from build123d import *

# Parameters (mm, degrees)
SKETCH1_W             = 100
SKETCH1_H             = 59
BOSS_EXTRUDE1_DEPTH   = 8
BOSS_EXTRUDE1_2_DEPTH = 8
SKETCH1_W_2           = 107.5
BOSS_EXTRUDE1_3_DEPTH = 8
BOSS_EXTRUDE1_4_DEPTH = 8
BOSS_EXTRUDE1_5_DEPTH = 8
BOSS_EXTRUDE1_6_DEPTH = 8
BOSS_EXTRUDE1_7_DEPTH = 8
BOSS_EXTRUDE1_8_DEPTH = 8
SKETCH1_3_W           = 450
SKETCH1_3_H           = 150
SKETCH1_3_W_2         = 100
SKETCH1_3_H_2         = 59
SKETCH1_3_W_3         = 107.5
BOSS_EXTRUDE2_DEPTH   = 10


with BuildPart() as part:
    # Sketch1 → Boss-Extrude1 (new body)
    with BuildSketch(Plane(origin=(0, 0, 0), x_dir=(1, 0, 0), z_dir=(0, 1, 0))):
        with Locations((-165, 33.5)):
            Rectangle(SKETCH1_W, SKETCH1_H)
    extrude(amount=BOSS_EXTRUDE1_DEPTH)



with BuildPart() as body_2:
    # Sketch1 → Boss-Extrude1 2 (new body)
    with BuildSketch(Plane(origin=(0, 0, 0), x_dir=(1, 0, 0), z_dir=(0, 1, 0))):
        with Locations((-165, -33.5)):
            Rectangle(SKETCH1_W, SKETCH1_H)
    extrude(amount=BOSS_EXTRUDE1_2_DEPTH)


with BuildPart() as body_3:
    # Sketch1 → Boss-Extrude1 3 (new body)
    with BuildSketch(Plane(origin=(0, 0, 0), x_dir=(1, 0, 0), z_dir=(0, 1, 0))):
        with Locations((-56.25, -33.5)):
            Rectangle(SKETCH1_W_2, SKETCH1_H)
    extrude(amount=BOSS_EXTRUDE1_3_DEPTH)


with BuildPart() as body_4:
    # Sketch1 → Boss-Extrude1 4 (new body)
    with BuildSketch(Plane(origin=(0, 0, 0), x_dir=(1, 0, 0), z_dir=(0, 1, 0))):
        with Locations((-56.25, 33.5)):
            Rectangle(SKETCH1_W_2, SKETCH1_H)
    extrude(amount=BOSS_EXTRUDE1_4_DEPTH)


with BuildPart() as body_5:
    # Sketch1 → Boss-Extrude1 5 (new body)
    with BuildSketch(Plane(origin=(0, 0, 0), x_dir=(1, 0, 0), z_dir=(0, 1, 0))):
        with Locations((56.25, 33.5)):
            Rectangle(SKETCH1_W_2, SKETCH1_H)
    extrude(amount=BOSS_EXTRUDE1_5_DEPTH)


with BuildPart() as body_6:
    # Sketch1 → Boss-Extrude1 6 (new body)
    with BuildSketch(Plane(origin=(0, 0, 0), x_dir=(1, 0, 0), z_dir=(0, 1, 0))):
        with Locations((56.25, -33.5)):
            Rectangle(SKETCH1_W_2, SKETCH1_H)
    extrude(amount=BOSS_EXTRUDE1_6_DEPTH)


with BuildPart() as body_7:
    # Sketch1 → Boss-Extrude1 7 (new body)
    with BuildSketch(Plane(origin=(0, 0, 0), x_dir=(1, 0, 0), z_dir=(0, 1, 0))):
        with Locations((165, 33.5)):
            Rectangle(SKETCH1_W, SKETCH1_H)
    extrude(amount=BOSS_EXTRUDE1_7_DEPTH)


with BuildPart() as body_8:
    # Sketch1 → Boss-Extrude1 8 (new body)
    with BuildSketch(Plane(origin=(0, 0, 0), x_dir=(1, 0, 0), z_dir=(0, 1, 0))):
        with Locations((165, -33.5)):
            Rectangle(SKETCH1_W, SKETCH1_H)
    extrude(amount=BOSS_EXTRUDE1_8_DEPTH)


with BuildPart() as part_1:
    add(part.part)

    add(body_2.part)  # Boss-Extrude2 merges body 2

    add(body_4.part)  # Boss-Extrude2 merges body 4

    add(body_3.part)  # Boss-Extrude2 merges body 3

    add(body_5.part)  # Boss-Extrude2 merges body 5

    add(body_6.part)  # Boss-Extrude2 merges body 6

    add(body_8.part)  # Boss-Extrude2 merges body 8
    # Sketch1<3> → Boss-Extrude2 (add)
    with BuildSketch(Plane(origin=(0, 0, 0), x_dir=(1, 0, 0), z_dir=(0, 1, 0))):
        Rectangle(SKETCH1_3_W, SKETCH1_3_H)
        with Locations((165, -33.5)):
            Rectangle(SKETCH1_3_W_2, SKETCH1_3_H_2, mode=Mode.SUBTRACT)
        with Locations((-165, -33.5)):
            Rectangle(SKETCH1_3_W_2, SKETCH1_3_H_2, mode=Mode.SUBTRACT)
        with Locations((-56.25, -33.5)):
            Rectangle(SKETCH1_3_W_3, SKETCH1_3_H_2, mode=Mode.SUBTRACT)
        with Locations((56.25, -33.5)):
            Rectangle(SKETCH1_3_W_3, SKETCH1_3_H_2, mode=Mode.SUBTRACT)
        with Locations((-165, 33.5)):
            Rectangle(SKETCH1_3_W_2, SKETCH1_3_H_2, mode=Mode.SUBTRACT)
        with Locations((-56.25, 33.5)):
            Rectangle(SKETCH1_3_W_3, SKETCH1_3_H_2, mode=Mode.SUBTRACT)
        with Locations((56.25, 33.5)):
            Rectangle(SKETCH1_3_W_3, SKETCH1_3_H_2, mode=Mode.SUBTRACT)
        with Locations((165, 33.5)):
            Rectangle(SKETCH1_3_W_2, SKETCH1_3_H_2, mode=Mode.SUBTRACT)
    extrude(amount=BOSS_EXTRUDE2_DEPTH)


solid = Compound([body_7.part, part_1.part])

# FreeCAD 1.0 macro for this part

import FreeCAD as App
import Part
import Sketcher

V = App.Vector

doc = App.newDocument("Part")
body = doc.addObject("PartDesign::Body", "Body")

# Sketch on XZ plane
sketch1 = body.newObject("Sketcher::SketchObject", "Sketch")
sketch1.AttachmentSupport = (doc.getObject("XZ_Plane"), [""])
sketch1.MapMode = "FlatFace"
sketch1.addGeometry([
    Part.LineSegment(V(-215, -63, 0), V(-215, -4, 0)),
    Part.LineSegment(V(-215, -4, 0), V(-115, -4, 0)),
    Part.LineSegment(V(-115, -4, 0), V(-115, -63, 0)),
    Part.LineSegment(V(-115, -63, 0), V(-215, -63, 0)),
], False)
sketch1.addConstraint([
    Sketcher.Constraint("Coincident", 0, 2, 1, 1),
    Sketcher.Constraint("Coincident", 1, 2, 2, 1),
    Sketcher.Constraint("Coincident", 2, 2, 3, 1),
    Sketcher.Constraint("Coincident", 3, 2, 0, 1),
    Sketcher.Constraint("Vertical", 0),
    Sketcher.Constraint("Horizontal", 1),
    Sketcher.Constraint("Vertical", 2),
    Sketcher.Constraint("Horizontal", 3),
    Sketcher.Constraint("DistanceX", 1, 1, 1, 2, 100.0),
    Sketcher.Constraint("DistanceY", 0, 1, 0, 2, 59.0),
    Sketcher.Constraint("DistanceX", 0, 2, -1, 1, 215.0),
    Sketcher.Constraint("DistanceY", 0, 2, -1, 1, 4.0),
])
pad1 = body.newObject("PartDesign::Pad", "Pad")
pad1.Profile = sketch1
pad1.Length = 8
pad1.Reversed = True
body2 = doc.addObject("PartDesign::Body", "Body001")

# Sketch on XZ plane
sketch2 = body2.newObject("Sketcher::SketchObject", "Sketch001")
sketch2.AttachmentSupport = (doc.getObject("XZ_Plane001"), [""])
sketch2.MapMode = "FlatFace"
sketch2.addGeometry([
    Part.LineSegment(V(-215, 4, 0), V(-215, 63, 0)),
    Part.LineSegment(V(-215, 63, 0), V(-115, 63, 0)),
    Part.LineSegment(V(-115, 63, 0), V(-115, 4, 0)),
    Part.LineSegment(V(-115, 4, 0), V(-215, 4, 0)),
], False)
sketch2.addConstraint([
    Sketcher.Constraint("Coincident", 0, 2, 1, 1),
    Sketcher.Constraint("Coincident", 1, 2, 2, 1),
    Sketcher.Constraint("Coincident", 2, 2, 3, 1),
    Sketcher.Constraint("Coincident", 3, 2, 0, 1),
    Sketcher.Constraint("Vertical", 0),
    Sketcher.Constraint("Horizontal", 1),
    Sketcher.Constraint("Vertical", 2),
    Sketcher.Constraint("Horizontal", 3),
    Sketcher.Constraint("DistanceX", 1, 1, 1, 2, 100.0),
    Sketcher.Constraint("DistanceY", 0, 1, 0, 2, 59.0),
    Sketcher.Constraint("DistanceX", 0, 2, -1, 1, 215.0),
    Sketcher.Constraint("DistanceY", -1, 1, 0, 2, 63.0),
])
pad2 = body2.newObject("PartDesign::Pad", "Pad001")
pad2.Profile = sketch2
pad2.Length = 8
pad2.Reversed = True
body3 = doc.addObject("PartDesign::Body", "Body002")

# Sketch on XZ plane
sketch3 = body3.newObject("Sketcher::SketchObject", "Sketch002")
sketch3.AttachmentSupport = (doc.getObject("XZ_Plane002"), [""])
sketch3.MapMode = "FlatFace"
sketch3.addGeometry([
    Part.LineSegment(V(-110, 4, 0), V(-110, 63, 0)),
    Part.LineSegment(V(-110, 63, 0), V(-2, 63, 0)),
    Part.LineSegment(V(-2, 63, 0), V(-2, 4, 0)),
    Part.LineSegment(V(-2, 4, 0), V(-110, 4, 0)),
], False)
sketch3.addConstraint([
    Sketcher.Constraint("Coincident", 0, 2, 1, 1),
    Sketcher.Constraint("Coincident", 1, 2, 2, 1),
    Sketcher.Constraint("Coincident", 2, 2, 3, 1),
    Sketcher.Constraint("Coincident", 3, 2, 0, 1),
    Sketcher.Constraint("Vertical", 0),
    Sketcher.Constraint("Horizontal", 1),
    Sketcher.Constraint("Vertical", 2),
    Sketcher.Constraint("Horizontal", 3),
    Sketcher.Constraint("DistanceY", 0, 1, 0, 2, 59.0),
    Sketcher.Constraint("DistanceX", 1, 1, 1, 2, 107.5),
    Sketcher.Constraint("DistanceX", 0, 2, -1, 1, 110.0),
    Sketcher.Constraint("DistanceY", -1, 1, 0, 2, 63.0),
])
pad3 = body3.newObject("PartDesign::Pad", "Pad002")
pad3.Profile = sketch3
pad3.Length = 8
pad3.Reversed = True
body4 = doc.addObject("PartDesign::Body", "Body003")

# Sketch on XZ plane
sketch4 = body4.newObject("Sketcher::SketchObject", "Sketch003")
sketch4.AttachmentSupport = (doc.getObject("XZ_Plane003"), [""])
sketch4.MapMode = "FlatFace"
sketch4.addGeometry([
    Part.LineSegment(V(-110, -63, 0), V(-110, -4, 0)),
    Part.LineSegment(V(-110, -4, 0), V(-2, -4, 0)),
    Part.LineSegment(V(-2, -4, 0), V(-2, -63, 0)),
    Part.LineSegment(V(-2, -63, 0), V(-110, -63, 0)),
], False)
sketch4.addConstraint([
    Sketcher.Constraint("Coincident", 0, 2, 1, 1),
    Sketcher.Constraint("Coincident", 1, 2, 2, 1),
    Sketcher.Constraint("Coincident", 2, 2, 3, 1),
    Sketcher.Constraint("Coincident", 3, 2, 0, 1),
    Sketcher.Constraint("Vertical", 0),
    Sketcher.Constraint("Horizontal", 1),
    Sketcher.Constraint("Vertical", 2),
    Sketcher.Constraint("Horizontal", 3),
    Sketcher.Constraint("DistanceY", 0, 1, 0, 2, 59.0),
    Sketcher.Constraint("DistanceX", 1, 1, 1, 2, 107.5),
    Sketcher.Constraint("DistanceX", 0, 2, -1, 1, 110.0),
    Sketcher.Constraint("DistanceY", 0, 2, -1, 1, 4.0),
])
pad4 = body4.newObject("PartDesign::Pad", "Pad003")
pad4.Profile = sketch4
pad4.Length = 8
pad4.Reversed = True
body5 = doc.addObject("PartDesign::Body", "Body004")

# Sketch on XZ plane
sketch5 = body5.newObject("Sketcher::SketchObject", "Sketch004")
sketch5.AttachmentSupport = (doc.getObject("XZ_Plane004"), [""])
sketch5.MapMode = "FlatFace"
sketch5.addGeometry([
    Part.LineSegment(V(2, -63, 0), V(2, -4, 0)),
    Part.LineSegment(V(2, -4, 0), V(110, -4, 0)),
    Part.LineSegment(V(110, -4, 0), V(110, -63, 0)),
    Part.LineSegment(V(110, -63, 0), V(2, -63, 0)),
], False)
sketch5.addConstraint([
    Sketcher.Constraint("Coincident", 0, 2, 1, 1),
    Sketcher.Constraint("Coincident", 1, 2, 2, 1),
    Sketcher.Constraint("Coincident", 2, 2, 3, 1),
    Sketcher.Constraint("Coincident", 3, 2, 0, 1),
    Sketcher.Constraint("Vertical", 0),
    Sketcher.Constraint("Horizontal", 1),
    Sketcher.Constraint("Vertical", 2),
    Sketcher.Constraint("Horizontal", 3),
    Sketcher.Constraint("DistanceY", 0, 1, 0, 2, 59.0),
    Sketcher.Constraint("DistanceX", 1, 1, 1, 2, 107.5),
    Sketcher.Constraint("DistanceY", 0, 2, -1, 1, 4.0),
    Sketcher.Constraint("DistanceX", -1, 1, 1, 2, 110.0),
])
pad5 = body5.newObject("PartDesign::Pad", "Pad004")
pad5.Profile = sketch5
pad5.Length = 8
pad5.Reversed = True
body6 = doc.addObject("PartDesign::Body", "Body005")

# Sketch on XZ plane
sketch6 = body6.newObject("Sketcher::SketchObject", "Sketch005")
sketch6.AttachmentSupport = (doc.getObject("XZ_Plane005"), [""])
sketch6.MapMode = "FlatFace"
sketch6.addGeometry([
    Part.LineSegment(V(2, 4, 0), V(2, 63, 0)),
    Part.LineSegment(V(2, 63, 0), V(110, 63, 0)),
    Part.LineSegment(V(110, 63, 0), V(110, 4, 0)),
    Part.LineSegment(V(110, 4, 0), V(2, 4, 0)),
], False)
sketch6.addConstraint([
    Sketcher.Constraint("Coincident", 0, 2, 1, 1),
    Sketcher.Constraint("Coincident", 1, 2, 2, 1),
    Sketcher.Constraint("Coincident", 2, 2, 3, 1),
    Sketcher.Constraint("Coincident", 3, 2, 0, 1),
    Sketcher.Constraint("Vertical", 0),
    Sketcher.Constraint("Horizontal", 1),
    Sketcher.Constraint("Vertical", 2),
    Sketcher.Constraint("Horizontal", 3),
    Sketcher.Constraint("DistanceY", 0, 1, 0, 2, 59.0),
    Sketcher.Constraint("DistanceX", 1, 1, 1, 2, 107.5),
    Sketcher.Constraint("DistanceY", -1, 1, 0, 2, 63.0),
    Sketcher.Constraint("DistanceX", -1, 1, 1, 2, 110.0),
])
pad6 = body6.newObject("PartDesign::Pad", "Pad005")
pad6.Profile = sketch6
pad6.Length = 8
pad6.Reversed = True
body7 = doc.addObject("PartDesign::Body", "Body006")

# Sketch on XZ plane
sketch7 = body7.newObject("Sketcher::SketchObject", "Sketch006")
sketch7.AttachmentSupport = (doc.getObject("XZ_Plane006"), [""])
sketch7.MapMode = "FlatFace"
sketch7.addGeometry([
    Part.LineSegment(V(115, -63, 0), V(115, -4, 0)),
    Part.LineSegment(V(115, -4, 0), V(215, -4, 0)),
    Part.LineSegment(V(215, -4, 0), V(215, -63, 0)),
    Part.LineSegment(V(215, -63, 0), V(115, -63, 0)),
], False)
sketch7.addConstraint([
    Sketcher.Constraint("Coincident", 0, 2, 1, 1),
    Sketcher.Constraint("Coincident", 1, 2, 2, 1),
    Sketcher.Constraint("Coincident", 2, 2, 3, 1),
    Sketcher.Constraint("Coincident", 3, 2, 0, 1),
    Sketcher.Constraint("Vertical", 0),
    Sketcher.Constraint("Horizontal", 1),
    Sketcher.Constraint("Vertical", 2),
    Sketcher.Constraint("Horizontal", 3),
    Sketcher.Constraint("DistanceX", 1, 1, 1, 2, 100.0),
    Sketcher.Constraint("DistanceY", 0, 1, 0, 2, 59.0),
    Sketcher.Constraint("DistanceX", -1, 1, 0, 2, 115.0),
    Sketcher.Constraint("DistanceY", 0, 2, -1, 1, 4.0),
])
pad7 = body7.newObject("PartDesign::Pad", "Pad006")
pad7.Profile = sketch7
pad7.Length = 8
pad7.Reversed = True
body8 = doc.addObject("PartDesign::Body", "Body007")

# Sketch on XZ plane
sketch8 = body8.newObject("Sketcher::SketchObject", "Sketch007")
sketch8.AttachmentSupport = (doc.getObject("XZ_Plane007"), [""])
sketch8.MapMode = "FlatFace"
sketch8.addGeometry([
    Part.LineSegment(V(115, 4, 0), V(115, 63, 0)),
    Part.LineSegment(V(115, 63, 0), V(215, 63, 0)),
    Part.LineSegment(V(215, 63, 0), V(215, 4, 0)),
    Part.LineSegment(V(215, 4, 0), V(115, 4, 0)),
], False)
sketch8.addConstraint([
    Sketcher.Constraint("Coincident", 0, 2, 1, 1),
    Sketcher.Constraint("Coincident", 1, 2, 2, 1),
    Sketcher.Constraint("Coincident", 2, 2, 3, 1),
    Sketcher.Constraint("Coincident", 3, 2, 0, 1),
    Sketcher.Constraint("Vertical", 0),
    Sketcher.Constraint("Horizontal", 1),
    Sketcher.Constraint("Vertical", 2),
    Sketcher.Constraint("Horizontal", 3),
    Sketcher.Constraint("DistanceX", 1, 1, 1, 2, 100.0),
    Sketcher.Constraint("DistanceY", 0, 1, 0, 2, 59.0),
    Sketcher.Constraint("DistanceX", -1, 1, 0, 2, 115.0),
    Sketcher.Constraint("DistanceY", -1, 1, 0, 2, 63.0),
])
pad8 = body8.newObject("PartDesign::Pad", "Pad007")
pad8.Profile = sketch8
pad8.Length = 8
pad8.Reversed = True
body.AllowCompound = True
doc.recompute()

boolean = body.newObject("PartDesign::Boolean", "Boolean")
boolean.Type = "Fuse"
boolean.addObjects([body2])
doc.recompute()

boolean2 = body.newObject("PartDesign::Boolean", "Boolean001")
boolean2.Type = "Fuse"
boolean2.addObjects([body4])
doc.recompute()

boolean3 = body.newObject("PartDesign::Boolean", "Boolean002")
boolean3.Type = "Fuse"
boolean3.addObjects([body3])
doc.recompute()

boolean4 = body.newObject("PartDesign::Boolean", "Boolean003")
boolean4.Type = "Fuse"
boolean4.addObjects([body5])
doc.recompute()

boolean5 = body.newObject("PartDesign::Boolean", "Boolean004")
boolean5.Type = "Fuse"
boolean5.addObjects([body6])
doc.recompute()

boolean6 = body.newObject("PartDesign::Boolean", "Boolean005")
boolean6.Type = "Fuse"
boolean6.addObjects([body8])

# Sketch on XZ plane
sketch9 = body.newObject("Sketcher::SketchObject", "Sketch008")
sketch9.AttachmentSupport = (doc.getObject("XZ_Plane"), [""])
sketch9.MapMode = "FlatFace"
sketch9.addGeometry([
    Part.LineSegment(V(-225, -75, 0), V(-225, 75, 0)),  # 0
    Part.LineSegment(V(-225, 75, 0), V(225, 75, 0)),  # 1
    Part.LineSegment(V(225, 75, 0), V(225, -75, 0)),  # 2
    Part.LineSegment(V(225, -75, 0), V(-225, -75, 0)),  # 3
    Part.LineSegment(V(-115, 63, 0), V(-215, 63, 0)),  # 4
    Part.LineSegment(V(-215, 63, 0), V(-215, 4, 0)),  # 5
    Part.LineSegment(V(-215, 4, 0), V(-115, 4, 0)),  # 6
    Part.LineSegment(V(-115, 4, 0), V(-115, 63, 0)),  # 7
    Part.LineSegment(V(-2, 63, 0), V(-110, 63, 0)),  # 8
    Part.LineSegment(V(-110, 63, 0), V(-110, 4, 0)),  # 9
    Part.LineSegment(V(-110, 4, 0), V(-2, 4, 0)),  # 10
    Part.LineSegment(V(-2, 4, 0), V(-2, 63, 0)),  # 11
    Part.LineSegment(V(110, 63, 0), V(2, 63, 0)),  # 12
    Part.LineSegment(V(2, 63, 0), V(2, 4, 0)),  # 13
    Part.LineSegment(V(2, 4, 0), V(110, 4, 0)),  # 14
    Part.LineSegment(V(110, 4, 0), V(110, 63, 0)),  # 15
    Part.LineSegment(V(215, 63, 0), V(115, 63, 0)),  # 16
    Part.LineSegment(V(115, 63, 0), V(115, 4, 0)),  # 17
    Part.LineSegment(V(115, 4, 0), V(215, 4, 0)),  # 18
    Part.LineSegment(V(215, 4, 0), V(215, 63, 0)),  # 19
    Part.LineSegment(V(-115, -4, 0), V(-215, -4, 0)),  # 20
    Part.LineSegment(V(-215, -4, 0), V(-215, -63, 0)),  # 21
    Part.LineSegment(V(-215, -63, 0), V(-115, -63, 0)),  # 22
    Part.LineSegment(V(-115, -63, 0), V(-115, -4, 0)),  # 23
    Part.LineSegment(V(-2, -4, 0), V(-110, -4, 0)),  # 24
    Part.LineSegment(V(-110, -4, 0), V(-110, -63, 0)),  # 25
    Part.LineSegment(V(-110, -63, 0), V(-2, -63, 0)),  # 26
    Part.LineSegment(V(-2, -63, 0), V(-2, -4, 0)),  # 27
    Part.LineSegment(V(110, -4, 0), V(2, -4, 0)),  # 28
    Part.LineSegment(V(2, -4, 0), V(2, -63, 0)),  # 29
    Part.LineSegment(V(2, -63, 0), V(110, -63, 0)),  # 30
    Part.LineSegment(V(110, -63, 0), V(110, -4, 0)),  # 31
    Part.LineSegment(V(215, -4, 0), V(115, -4, 0)),  # 32
    Part.LineSegment(V(115, -4, 0), V(115, -63, 0)),  # 33
    Part.LineSegment(V(115, -63, 0), V(215, -63, 0)),  # 34
    Part.LineSegment(V(215, -63, 0), V(215, -4, 0)),  # 35
], False)
sketch9.addConstraint([
    Sketcher.Constraint("Coincident", 0, 2, 1, 1),
    Sketcher.Constraint("Coincident", 1, 2, 2, 1),
    Sketcher.Constraint("Coincident", 2, 2, 3, 1),
    Sketcher.Constraint("Coincident", 3, 2, 0, 1),
    Sketcher.Constraint("Coincident", 4, 2, 5, 1),
    Sketcher.Constraint("Coincident", 5, 2, 6, 1),
    Sketcher.Constraint("Coincident", 6, 2, 7, 1),
    Sketcher.Constraint("Coincident", 7, 2, 4, 1),
    Sketcher.Constraint("Coincident", 8, 2, 9, 1),
    Sketcher.Constraint("Coincident", 9, 2, 10, 1),
    Sketcher.Constraint("Coincident", 10, 2, 11, 1),
    Sketcher.Constraint("Coincident", 11, 2, 8, 1),
    Sketcher.Constraint("Coincident", 12, 2, 13, 1),
    Sketcher.Constraint("Coincident", 13, 2, 14, 1),
    Sketcher.Constraint("Coincident", 14, 2, 15, 1),
    Sketcher.Constraint("Coincident", 15, 2, 12, 1),
    Sketcher.Constraint("Coincident", 16, 2, 17, 1),
    Sketcher.Constraint("Coincident", 17, 2, 18, 1),
    Sketcher.Constraint("Coincident", 18, 2, 19, 1),
    Sketcher.Constraint("Coincident", 19, 2, 16, 1),
    Sketcher.Constraint("Coincident", 20, 2, 21, 1),
    Sketcher.Constraint("Coincident", 21, 2, 22, 1),
    Sketcher.Constraint("Coincident", 22, 2, 23, 1),
    Sketcher.Constraint("Coincident", 23, 2, 20, 1),
    Sketcher.Constraint("Coincident", 24, 2, 25, 1),
    Sketcher.Constraint("Coincident", 25, 2, 26, 1),
    Sketcher.Constraint("Coincident", 26, 2, 27, 1),
    Sketcher.Constraint("Coincident", 27, 2, 24, 1),
    Sketcher.Constraint("Coincident", 28, 2, 29, 1),
    Sketcher.Constraint("Coincident", 29, 2, 30, 1),
    Sketcher.Constraint("Coincident", 30, 2, 31, 1),
    Sketcher.Constraint("Coincident", 31, 2, 28, 1),
    Sketcher.Constraint("Coincident", 32, 2, 33, 1),
    Sketcher.Constraint("Coincident", 33, 2, 34, 1),
    Sketcher.Constraint("Coincident", 34, 2, 35, 1),
    Sketcher.Constraint("Coincident", 35, 2, 32, 1),
    Sketcher.Constraint("Vertical", 0),
    Sketcher.Constraint("Horizontal", 1),
    Sketcher.Constraint("Vertical", 2),
    Sketcher.Constraint("Horizontal", 3),
    Sketcher.Constraint("Horizontal", 4),
    Sketcher.Constraint("Vertical", 5),
    Sketcher.Constraint("Horizontal", 6),
    Sketcher.Constraint("Vertical", 7),
    Sketcher.Constraint("Horizontal", 8),
    Sketcher.Constraint("Vertical", 9),
    Sketcher.Constraint("Horizontal", 10),
    Sketcher.Constraint("Vertical", 11),
    Sketcher.Constraint("Horizontal", 12),
    Sketcher.Constraint("Vertical", 13),
    Sketcher.Constraint("Horizontal", 14),
    Sketcher.Constraint("Vertical", 15),
    Sketcher.Constraint("Horizontal", 16),
    Sketcher.Constraint("Vertical", 17),
    Sketcher.Constraint("Horizontal", 18),
    Sketcher.Constraint("Vertical", 19),
    Sketcher.Constraint("Horizontal", 20),
    Sketcher.Constraint("Vertical", 21),
    Sketcher.Constraint("Horizontal", 22),
    Sketcher.Constraint("Vertical", 23),
    Sketcher.Constraint("Horizontal", 24),
    Sketcher.Constraint("Vertical", 25),
    Sketcher.Constraint("Horizontal", 26),
    Sketcher.Constraint("Vertical", 27),
    Sketcher.Constraint("Horizontal", 28),
    Sketcher.Constraint("Vertical", 29),
    Sketcher.Constraint("Horizontal", 30),
    Sketcher.Constraint("Vertical", 31),
    Sketcher.Constraint("Horizontal", 32),
    Sketcher.Constraint("Vertical", 33),
    Sketcher.Constraint("Horizontal", 34),
    Sketcher.Constraint("Vertical", 35),
    Sketcher.Constraint("Symmetric", 0, 2, 2, 2, -1, 1),
    Sketcher.Constraint("Symmetric", 18, 2, 20, 2, -1, 1),
    Sketcher.Constraint("Symmetric", 16, 2, 22, 2, -1, 1),
    Sketcher.Constraint("Symmetric", 14, 2, 24, 2, -1, 1),
    Sketcher.Constraint("Symmetric", 12, 2, 26, 2, -1, 1),
    Sketcher.Constraint("Symmetric", 10, 2, 28, 2, -1, 1),
    Sketcher.Constraint("Symmetric", 8, 2, 30, 2, -1, 1),
    Sketcher.Constraint("Symmetric", 6, 2, 32, 2, -1, 1),
    Sketcher.Constraint("Symmetric", 4, 2, 34, 2, -1, 1),
    Sketcher.Constraint("Symmetric", 11, 2, 12, 2, -2),
    Sketcher.Constraint("Symmetric", 9, 2, 14, 2, -2),
    Sketcher.Constraint("Symmetric", 7, 2, 16, 2, -2),
    Sketcher.Constraint("Symmetric", 5, 2, 18, 2, -2),
    Sketcher.Constraint("Horizontal", 7, 2, 8, 2),
    Sketcher.Constraint("Horizontal", 6, 2, 9, 2),
    Sketcher.Constraint("DistanceX", 1, 1, 1, 2, 450.0),
    Sketcher.Constraint("DistanceX", 4, 2, 4, 1, 100.0),
    Sketcher.Constraint("DistanceY", 0, 1, 0, 2, 150.0),
    Sketcher.Constraint("DistanceY", 5, 2, 5, 1, 59.0),
    Sketcher.Constraint("DistanceX", 8, 2, 8, 1, 107.5),
    Sketcher.Constraint("DistanceX", 4, 2, -1, 1, 215.0),
    Sketcher.Constraint("DistanceY", -1, 1, 4, 2, 63.0),
    Sketcher.Constraint("DistanceX", 8, 2, -1, 1, 110.0),
])
pad9 = body.newObject("PartDesign::Pad", "Pad008")
pad9.Profile = sketch9
pad9.Length = 10
pad9.Reversed = True

doc.recompute()
